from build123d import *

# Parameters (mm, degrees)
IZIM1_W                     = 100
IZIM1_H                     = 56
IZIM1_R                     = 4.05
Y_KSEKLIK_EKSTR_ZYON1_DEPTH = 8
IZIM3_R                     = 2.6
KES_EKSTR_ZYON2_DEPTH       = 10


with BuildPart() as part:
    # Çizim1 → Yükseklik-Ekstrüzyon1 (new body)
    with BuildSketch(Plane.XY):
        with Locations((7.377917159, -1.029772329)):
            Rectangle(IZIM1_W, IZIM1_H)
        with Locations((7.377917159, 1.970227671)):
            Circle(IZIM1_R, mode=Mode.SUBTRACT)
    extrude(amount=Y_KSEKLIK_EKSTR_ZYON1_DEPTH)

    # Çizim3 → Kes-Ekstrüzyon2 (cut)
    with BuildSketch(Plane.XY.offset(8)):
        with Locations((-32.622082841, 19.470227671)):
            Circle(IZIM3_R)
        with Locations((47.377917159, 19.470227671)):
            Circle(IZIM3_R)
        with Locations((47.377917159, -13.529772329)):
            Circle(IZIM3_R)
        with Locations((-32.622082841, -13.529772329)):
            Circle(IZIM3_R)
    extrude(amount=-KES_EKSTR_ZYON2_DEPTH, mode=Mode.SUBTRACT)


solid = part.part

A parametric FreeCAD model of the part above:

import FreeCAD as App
import Part
import Sketcher
from FreeCAD import Vector

doc = App.newDocument("Part")
body = doc.addObject("PartDesign::Body", "Body")

# Sketch on XY plane
sketch1 = doc.addObject("Sketcher::SketchObject", "Sketch")
body.addObject(sketch1)
sketch1.AttachmentSupport = (doc.XY_Plane, [""])
sketch1.MapMode = "FlatFace"
sketch1.addGeometry(Part.LineSegment(Vector(-42.6, 27, 0), Vector(-42.6, -29, 0)), False)
sketch1.addGeometry(Part.LineSegment(Vector(-42.6, -29, 0), Vector(57.4, -29, 0)), False)
sketch1.addGeometry(Part.LineSegment(Vector(57.4, -29, 0), Vector(57.4, 27, 0)), False)
sketch1.addGeometry(Part.LineSegment(Vector(57.4, 27, 0), Vector(-42.6, 27, 0)), False)
sketch1.addGeometry(Part.Circle(Vector(7.4, 2, 0), Vector(0, 0, 1), 4), False)
sketch1.addConstraint(Sketcher.Constraint("Coincident", 0, 2, 1, 1))
sketch1.addConstraint(Sketcher.Constraint("Coincident", 1, 2, 2, 1))
sketch1.addConstraint(Sketcher.Constraint("Coincident", 2, 2, 3, 1))
sketch1.addConstraint(Sketcher.Constraint("Coincident", 3, 2, 0, 1))
sketch1.addConstraint(Sketcher.Constraint("Vertical", 0))
sketch1.addConstraint(Sketcher.Constraint("Horizontal", 1))
sketch1.addConstraint(Sketcher.Constraint("Vertical", 2))
sketch1.addConstraint(Sketcher.Constraint("Horizontal", 3))
sketch1.addConstraint(Sketcher.Constraint("Diameter", 4, 8.1))
sketch1.addConstraint(Sketcher.Constraint("DistanceX", 1, 1, 1, 2, 100.0))
sketch1.addConstraint(Sketcher.Constraint("DistanceY", 0, 2, 0, 1, 56.0))
sketch1.addConstraint(Sketcher.Constraint("DistanceX", 0, 2, 4, 3, 50.0))
sketch1.addConstraint(Sketcher.Constraint("DistanceY", 0, 2, 4, 3, 31.0))
sketch1.addConstraint(Sketcher.Constraint("DistanceX", -1, 1, 4, 3, 7.377917))
sketch1.addConstraint(Sketcher.Constraint("DistanceY", -1, 1, 4, 3, 1.970228))
pad1 = doc.addObject("PartDesign::Pad", "Pad")
body.addObject(pad1)
pad1.Profile = sketch1
pad1.Length = 8

# Sketch on XY plane
sketch2 = doc.addObject("Sketcher::SketchObject", "Sketch001")
body.addObject(sketch2)
sketch2.AttachmentSupport = (doc.XY_Plane, [""])
sketch2.MapMode = "FlatFace"
sketch2.AttachmentOffset = App.Placement(Vector(0, 0, 8), App.Rotation())
sketch2.addGeometry(Part.Circle(Vector(-32.6, 19.5, 0), Vector(0, 0, 1), 2.6), False)
sketch2.addGeometry(Part.Circle(Vector(47.4, 19.5, 0), Vector(0, 0, 1), 2.6), False)
sketch2.addGeometry(Part.Circle(Vector(47.4, -13.5, 0), Vector(0, 0, 1), 2.6), False)
sketch2.addGeometry(Part.Circle(Vector(-32.6, -13.5, 0), Vector(0, 0, 1), 2.6), False)
sketch2.addConstraint(Sketcher.Constraint("Equal", 0, 1))
sketch2.addConstraint(Sketcher.Constraint("Equal", 1, 2))
sketch2.addConstraint(Sketcher.Constraint("Equal", 2, 3))
sketch2.addConstraint(Sketcher.Constraint("Horizontal", 0, 3, 1, 3))
sketch2.addConstraint(Sketcher.Constraint("Horizontal", 2, 3, 3, 3))
sketch2.addConstraint(Sketcher.Constraint("Vertical", 1, 3, 2, 3))
sketch2.addConstraint(Sketcher.Constraint("Vertical", 0, 3, 3, 3))
sketch2.addConstraint(Sketcher.Constraint("Diameter", 0, 5.2))
sketch2.addConstraint(Sketcher.Constraint("DistanceX", 0, 3, 1, 3, 80.0))
sketch2.addConstraint(Sketcher.Constraint("DistanceY", 2, 3, 1, 3, 33.0))
sketch2.addConstraint(Sketcher.Constraint("DistanceX", 0, 3, -1, 1, 32.622083))
sketch2.addConstraint(Sketcher.Constraint("DistanceY", -1, 1, 0, 3, 19.470228))
pocket1 = doc.addObject("PartDesign::Pocket", "Pocket")
body.addObject(pocket1)
pocket1.Profile = sketch2
pocket1.Length = 10

doc.recompute()
